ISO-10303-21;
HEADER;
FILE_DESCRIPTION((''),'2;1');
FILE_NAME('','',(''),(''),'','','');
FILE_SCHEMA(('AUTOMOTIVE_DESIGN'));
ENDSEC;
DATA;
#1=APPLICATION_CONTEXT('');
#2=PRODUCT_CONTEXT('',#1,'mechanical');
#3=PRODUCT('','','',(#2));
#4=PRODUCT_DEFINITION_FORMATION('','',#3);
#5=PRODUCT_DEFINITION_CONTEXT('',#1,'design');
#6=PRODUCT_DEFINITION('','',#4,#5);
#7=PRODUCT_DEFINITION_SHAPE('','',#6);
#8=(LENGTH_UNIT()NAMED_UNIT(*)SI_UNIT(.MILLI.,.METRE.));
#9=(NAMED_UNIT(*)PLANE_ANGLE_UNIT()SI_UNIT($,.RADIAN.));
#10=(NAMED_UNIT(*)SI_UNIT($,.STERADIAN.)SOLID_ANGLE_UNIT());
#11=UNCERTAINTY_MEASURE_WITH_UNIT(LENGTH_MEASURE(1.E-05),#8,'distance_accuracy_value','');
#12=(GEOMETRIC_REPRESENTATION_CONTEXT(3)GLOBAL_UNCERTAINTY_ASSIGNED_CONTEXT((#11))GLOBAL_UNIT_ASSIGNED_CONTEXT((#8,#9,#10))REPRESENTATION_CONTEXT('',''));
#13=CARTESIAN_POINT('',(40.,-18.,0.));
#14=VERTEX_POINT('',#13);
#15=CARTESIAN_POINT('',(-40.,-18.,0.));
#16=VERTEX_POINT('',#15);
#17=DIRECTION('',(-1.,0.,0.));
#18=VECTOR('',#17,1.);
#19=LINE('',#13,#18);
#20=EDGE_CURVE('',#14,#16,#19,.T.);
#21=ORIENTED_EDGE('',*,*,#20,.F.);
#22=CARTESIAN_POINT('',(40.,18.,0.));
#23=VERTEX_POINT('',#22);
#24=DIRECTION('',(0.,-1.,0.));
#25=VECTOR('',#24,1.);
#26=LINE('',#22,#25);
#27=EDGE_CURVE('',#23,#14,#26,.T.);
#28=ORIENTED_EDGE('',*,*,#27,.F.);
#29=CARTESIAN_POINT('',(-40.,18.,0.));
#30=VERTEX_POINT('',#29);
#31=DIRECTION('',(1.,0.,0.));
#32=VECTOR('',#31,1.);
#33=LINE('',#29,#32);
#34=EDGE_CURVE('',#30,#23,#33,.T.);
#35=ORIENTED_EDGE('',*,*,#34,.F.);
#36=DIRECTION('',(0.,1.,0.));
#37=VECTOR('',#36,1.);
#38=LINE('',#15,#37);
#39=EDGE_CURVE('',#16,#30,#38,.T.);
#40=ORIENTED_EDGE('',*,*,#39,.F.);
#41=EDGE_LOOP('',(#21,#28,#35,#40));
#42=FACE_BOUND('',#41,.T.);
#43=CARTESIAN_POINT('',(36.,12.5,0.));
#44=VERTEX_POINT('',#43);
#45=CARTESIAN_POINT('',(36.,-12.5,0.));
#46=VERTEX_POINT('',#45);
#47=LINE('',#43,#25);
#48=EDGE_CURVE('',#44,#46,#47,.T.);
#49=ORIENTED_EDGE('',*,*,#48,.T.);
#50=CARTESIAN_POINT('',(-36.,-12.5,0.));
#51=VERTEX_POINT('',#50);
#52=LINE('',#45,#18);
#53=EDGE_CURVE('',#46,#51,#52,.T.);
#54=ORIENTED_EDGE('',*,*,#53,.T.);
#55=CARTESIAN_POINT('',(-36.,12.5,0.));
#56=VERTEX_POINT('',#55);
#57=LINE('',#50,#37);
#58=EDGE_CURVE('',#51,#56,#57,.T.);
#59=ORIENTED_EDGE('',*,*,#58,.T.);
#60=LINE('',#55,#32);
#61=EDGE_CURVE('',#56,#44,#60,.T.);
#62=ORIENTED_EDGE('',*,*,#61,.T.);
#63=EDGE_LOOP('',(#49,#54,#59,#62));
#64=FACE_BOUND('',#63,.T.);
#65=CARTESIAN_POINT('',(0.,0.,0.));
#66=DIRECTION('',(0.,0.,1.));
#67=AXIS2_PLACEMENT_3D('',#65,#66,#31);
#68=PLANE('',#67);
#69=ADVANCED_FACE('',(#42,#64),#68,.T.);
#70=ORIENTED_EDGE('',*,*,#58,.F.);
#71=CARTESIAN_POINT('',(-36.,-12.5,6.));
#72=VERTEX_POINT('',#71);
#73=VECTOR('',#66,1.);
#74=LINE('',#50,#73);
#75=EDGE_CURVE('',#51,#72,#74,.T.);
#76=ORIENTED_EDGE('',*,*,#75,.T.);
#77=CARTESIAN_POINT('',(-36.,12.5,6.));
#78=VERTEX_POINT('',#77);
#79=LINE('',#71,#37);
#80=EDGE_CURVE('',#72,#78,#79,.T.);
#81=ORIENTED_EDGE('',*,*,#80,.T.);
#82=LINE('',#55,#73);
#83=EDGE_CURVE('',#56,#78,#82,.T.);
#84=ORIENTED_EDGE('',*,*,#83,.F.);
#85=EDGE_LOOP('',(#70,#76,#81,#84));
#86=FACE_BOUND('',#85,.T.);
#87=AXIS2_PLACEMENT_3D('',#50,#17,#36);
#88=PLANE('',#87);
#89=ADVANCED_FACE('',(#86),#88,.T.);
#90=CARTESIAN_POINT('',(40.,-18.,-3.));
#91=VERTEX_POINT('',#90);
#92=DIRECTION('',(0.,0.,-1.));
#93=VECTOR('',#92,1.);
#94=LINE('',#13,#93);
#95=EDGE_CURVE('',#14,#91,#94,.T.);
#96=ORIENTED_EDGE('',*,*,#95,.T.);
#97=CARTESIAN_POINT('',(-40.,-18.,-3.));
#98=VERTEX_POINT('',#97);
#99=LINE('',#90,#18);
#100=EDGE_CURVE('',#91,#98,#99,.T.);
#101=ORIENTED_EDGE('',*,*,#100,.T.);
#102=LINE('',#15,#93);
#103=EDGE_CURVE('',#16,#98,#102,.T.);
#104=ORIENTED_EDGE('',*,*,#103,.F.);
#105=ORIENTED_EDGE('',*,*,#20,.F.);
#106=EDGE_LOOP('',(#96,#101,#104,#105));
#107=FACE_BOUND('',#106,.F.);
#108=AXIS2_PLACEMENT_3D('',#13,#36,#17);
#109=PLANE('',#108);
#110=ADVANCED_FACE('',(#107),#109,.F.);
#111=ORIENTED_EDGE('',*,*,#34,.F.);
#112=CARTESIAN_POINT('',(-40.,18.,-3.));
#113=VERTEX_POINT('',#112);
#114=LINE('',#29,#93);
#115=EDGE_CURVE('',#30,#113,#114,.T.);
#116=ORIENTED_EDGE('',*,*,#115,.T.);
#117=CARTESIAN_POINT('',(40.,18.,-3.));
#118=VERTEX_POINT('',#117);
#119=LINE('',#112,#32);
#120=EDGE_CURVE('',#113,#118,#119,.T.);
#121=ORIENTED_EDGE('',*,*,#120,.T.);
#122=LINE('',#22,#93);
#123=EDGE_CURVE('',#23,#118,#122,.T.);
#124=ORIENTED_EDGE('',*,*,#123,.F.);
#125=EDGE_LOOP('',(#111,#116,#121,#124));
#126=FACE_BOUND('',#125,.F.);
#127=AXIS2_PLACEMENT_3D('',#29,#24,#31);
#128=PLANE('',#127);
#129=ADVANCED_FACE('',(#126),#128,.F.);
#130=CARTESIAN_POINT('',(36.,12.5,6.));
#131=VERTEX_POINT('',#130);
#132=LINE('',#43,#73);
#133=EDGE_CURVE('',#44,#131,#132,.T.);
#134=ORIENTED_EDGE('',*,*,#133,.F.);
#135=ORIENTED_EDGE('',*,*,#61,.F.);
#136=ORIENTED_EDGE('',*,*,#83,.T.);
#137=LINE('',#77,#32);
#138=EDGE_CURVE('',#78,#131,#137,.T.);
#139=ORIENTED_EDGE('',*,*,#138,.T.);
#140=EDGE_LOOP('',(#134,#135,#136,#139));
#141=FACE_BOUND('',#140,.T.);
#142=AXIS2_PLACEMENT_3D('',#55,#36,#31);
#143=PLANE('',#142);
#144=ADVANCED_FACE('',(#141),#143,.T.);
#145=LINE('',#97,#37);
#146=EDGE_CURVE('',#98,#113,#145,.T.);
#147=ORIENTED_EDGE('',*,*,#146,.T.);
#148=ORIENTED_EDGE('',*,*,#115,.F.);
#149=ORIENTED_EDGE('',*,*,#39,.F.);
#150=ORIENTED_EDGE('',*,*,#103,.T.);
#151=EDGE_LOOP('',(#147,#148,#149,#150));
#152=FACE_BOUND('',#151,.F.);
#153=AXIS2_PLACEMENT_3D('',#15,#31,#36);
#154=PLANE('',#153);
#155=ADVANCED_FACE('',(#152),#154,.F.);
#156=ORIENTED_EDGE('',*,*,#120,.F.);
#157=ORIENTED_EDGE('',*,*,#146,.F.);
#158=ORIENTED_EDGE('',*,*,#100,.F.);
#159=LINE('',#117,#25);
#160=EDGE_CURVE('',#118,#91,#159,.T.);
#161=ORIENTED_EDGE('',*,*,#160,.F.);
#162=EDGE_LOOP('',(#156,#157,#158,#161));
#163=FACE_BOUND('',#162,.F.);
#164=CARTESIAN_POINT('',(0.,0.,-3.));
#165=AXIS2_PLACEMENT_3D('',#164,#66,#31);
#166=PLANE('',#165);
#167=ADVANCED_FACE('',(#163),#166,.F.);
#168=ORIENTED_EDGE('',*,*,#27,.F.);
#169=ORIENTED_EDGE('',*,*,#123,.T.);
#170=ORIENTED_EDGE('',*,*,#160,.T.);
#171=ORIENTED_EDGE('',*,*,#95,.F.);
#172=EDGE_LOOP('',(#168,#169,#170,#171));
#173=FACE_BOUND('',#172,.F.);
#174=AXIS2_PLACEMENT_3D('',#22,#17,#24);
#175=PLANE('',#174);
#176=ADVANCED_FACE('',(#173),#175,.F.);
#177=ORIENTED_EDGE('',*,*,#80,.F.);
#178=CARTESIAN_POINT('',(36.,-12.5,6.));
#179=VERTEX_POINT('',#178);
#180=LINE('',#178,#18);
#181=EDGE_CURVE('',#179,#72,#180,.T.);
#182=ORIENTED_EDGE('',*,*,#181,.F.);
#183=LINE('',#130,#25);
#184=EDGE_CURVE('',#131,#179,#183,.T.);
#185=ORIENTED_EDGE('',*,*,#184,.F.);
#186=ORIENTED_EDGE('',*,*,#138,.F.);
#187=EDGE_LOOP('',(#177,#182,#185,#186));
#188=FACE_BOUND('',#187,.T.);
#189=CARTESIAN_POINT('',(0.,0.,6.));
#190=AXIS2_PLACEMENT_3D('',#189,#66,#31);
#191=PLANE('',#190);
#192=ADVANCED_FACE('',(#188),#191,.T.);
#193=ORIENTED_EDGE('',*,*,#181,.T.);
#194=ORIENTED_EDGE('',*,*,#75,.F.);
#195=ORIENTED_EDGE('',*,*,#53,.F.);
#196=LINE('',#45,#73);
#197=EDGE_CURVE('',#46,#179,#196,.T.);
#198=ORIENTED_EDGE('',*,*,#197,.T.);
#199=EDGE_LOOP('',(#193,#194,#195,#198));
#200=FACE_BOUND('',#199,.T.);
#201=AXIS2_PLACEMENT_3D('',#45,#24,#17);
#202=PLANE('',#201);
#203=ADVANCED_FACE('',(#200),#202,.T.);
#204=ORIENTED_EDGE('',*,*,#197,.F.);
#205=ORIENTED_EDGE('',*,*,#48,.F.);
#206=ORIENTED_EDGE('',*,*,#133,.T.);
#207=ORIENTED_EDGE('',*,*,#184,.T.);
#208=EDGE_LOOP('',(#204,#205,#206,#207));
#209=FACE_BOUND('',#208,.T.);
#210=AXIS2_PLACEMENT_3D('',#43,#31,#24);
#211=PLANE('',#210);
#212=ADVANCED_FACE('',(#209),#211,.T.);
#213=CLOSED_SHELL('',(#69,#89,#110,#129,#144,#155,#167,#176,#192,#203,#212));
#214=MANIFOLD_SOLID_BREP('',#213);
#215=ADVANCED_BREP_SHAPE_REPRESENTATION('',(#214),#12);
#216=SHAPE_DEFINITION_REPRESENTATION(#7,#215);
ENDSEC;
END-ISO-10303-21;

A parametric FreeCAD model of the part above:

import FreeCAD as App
import Part
import Sketcher
from FreeCAD import Vector

doc = App.newDocument("Part")
body = doc.addObject("PartDesign::Body", "Body")

# Sketch on XY plane
sketch1 = doc.addObject("Sketcher::SketchObject", "Sketch")
body.addObject(sketch1)
sketch1.AttachmentSupport = (doc.XY_Plane, [""])
sketch1.MapMode = "FlatFace"
sketch1.addGeometry([
    Part.LineSegment(Vector(40, 18, 0), Vector(-40, 18, 0)),
    Part.LineSegment(Vector(-40, 18, 0), Vector(-40, -18, 0)),
    Part.LineSegment(Vector(-40, -18, 0), Vector(40, -18, 0)),
    Part.LineSegment(Vector(40, -18, 0), Vector(40, 18, 0)),
], False)
sketch1.addConstraint([
    Sketcher.Constraint("Coincident", 0, 2, 1, 1),
    Sketcher.Constraint("Coincident", 1, 2, 2, 1),
    Sketcher.Constraint("Coincident", 2, 2, 3, 1),
    Sketcher.Constraint("Coincident", 3, 2, 0, 1),
    Sketcher.Constraint("Horizontal", 0),
    Sketcher.Constraint("Vertical", 1),
    Sketcher.Constraint("Horizontal", 2),
    Sketcher.Constraint("Vertical", 3),
    Sketcher.Constraint("Symmetric", 0, 2, 2, 2, -1, 1),
    Sketcher.Constraint("DistanceX", 0, 2, 0, 1, 80.0),
    Sketcher.Constraint("DistanceY", 1, 2, 1, 1, 36.0),
])
pad1 = doc.addObject("PartDesign::Pad", "Pad")
body.addObject(pad1)
pad1.Profile = sketch1
pad1.Length = 3
pad1.Reversed = True

# Sketch on XY plane
sketch2 = doc.addObject("Sketcher::SketchObject", "Sketch001")
body.addObject(sketch2)
sketch2.AttachmentSupport = (doc.XY_Plane, [""])
sketch2.MapMode = "FlatFace"
sketch2.addGeometry([
    Part.LineSegment(Vector(36, 12, 0), Vector(-36, 12, 0)),
    Part.LineSegment(Vector(-36, 12, 0), Vector(-36, -12, 0)),
    Part.LineSegment(Vector(-36, -12, 0), Vector(36, -12, 0)),
    Part.LineSegment(Vector(36, -12, 0), Vector(36, 12, 0)),
], False)
sketch2.addConstraint([
    Sketcher.Constraint("Coincident", 0, 2, 1, 1),
    Sketcher.Constraint("Coincident", 1, 2, 2, 1),
    Sketcher.Constraint("Coincident", 2, 2, 3, 1),
    Sketcher.Constraint("Coincident", 3, 2, 0, 1),
    Sketcher.Constraint("Horizontal", 0),
    Sketcher.Constraint("Vertical", 1),
    Sketcher.Constraint("Horizontal", 2),
    Sketcher.Constraint("Vertical", 3),
    Sketcher.Constraint("Symmetric", 0, 2, 2, 2, -1, 1),
    Sketcher.Constraint("DistanceX", 0, 2, 0, 1, 72.0),
    Sketcher.Constraint("DistanceY", 1, 2, 1, 1, 25.0),
])
pad2 = doc.addObject("PartDesign::Pad", "Pad001")
body.addObject(pad2)
pad2.Profile = sketch2
pad2.Length = 6

doc.recompute()
